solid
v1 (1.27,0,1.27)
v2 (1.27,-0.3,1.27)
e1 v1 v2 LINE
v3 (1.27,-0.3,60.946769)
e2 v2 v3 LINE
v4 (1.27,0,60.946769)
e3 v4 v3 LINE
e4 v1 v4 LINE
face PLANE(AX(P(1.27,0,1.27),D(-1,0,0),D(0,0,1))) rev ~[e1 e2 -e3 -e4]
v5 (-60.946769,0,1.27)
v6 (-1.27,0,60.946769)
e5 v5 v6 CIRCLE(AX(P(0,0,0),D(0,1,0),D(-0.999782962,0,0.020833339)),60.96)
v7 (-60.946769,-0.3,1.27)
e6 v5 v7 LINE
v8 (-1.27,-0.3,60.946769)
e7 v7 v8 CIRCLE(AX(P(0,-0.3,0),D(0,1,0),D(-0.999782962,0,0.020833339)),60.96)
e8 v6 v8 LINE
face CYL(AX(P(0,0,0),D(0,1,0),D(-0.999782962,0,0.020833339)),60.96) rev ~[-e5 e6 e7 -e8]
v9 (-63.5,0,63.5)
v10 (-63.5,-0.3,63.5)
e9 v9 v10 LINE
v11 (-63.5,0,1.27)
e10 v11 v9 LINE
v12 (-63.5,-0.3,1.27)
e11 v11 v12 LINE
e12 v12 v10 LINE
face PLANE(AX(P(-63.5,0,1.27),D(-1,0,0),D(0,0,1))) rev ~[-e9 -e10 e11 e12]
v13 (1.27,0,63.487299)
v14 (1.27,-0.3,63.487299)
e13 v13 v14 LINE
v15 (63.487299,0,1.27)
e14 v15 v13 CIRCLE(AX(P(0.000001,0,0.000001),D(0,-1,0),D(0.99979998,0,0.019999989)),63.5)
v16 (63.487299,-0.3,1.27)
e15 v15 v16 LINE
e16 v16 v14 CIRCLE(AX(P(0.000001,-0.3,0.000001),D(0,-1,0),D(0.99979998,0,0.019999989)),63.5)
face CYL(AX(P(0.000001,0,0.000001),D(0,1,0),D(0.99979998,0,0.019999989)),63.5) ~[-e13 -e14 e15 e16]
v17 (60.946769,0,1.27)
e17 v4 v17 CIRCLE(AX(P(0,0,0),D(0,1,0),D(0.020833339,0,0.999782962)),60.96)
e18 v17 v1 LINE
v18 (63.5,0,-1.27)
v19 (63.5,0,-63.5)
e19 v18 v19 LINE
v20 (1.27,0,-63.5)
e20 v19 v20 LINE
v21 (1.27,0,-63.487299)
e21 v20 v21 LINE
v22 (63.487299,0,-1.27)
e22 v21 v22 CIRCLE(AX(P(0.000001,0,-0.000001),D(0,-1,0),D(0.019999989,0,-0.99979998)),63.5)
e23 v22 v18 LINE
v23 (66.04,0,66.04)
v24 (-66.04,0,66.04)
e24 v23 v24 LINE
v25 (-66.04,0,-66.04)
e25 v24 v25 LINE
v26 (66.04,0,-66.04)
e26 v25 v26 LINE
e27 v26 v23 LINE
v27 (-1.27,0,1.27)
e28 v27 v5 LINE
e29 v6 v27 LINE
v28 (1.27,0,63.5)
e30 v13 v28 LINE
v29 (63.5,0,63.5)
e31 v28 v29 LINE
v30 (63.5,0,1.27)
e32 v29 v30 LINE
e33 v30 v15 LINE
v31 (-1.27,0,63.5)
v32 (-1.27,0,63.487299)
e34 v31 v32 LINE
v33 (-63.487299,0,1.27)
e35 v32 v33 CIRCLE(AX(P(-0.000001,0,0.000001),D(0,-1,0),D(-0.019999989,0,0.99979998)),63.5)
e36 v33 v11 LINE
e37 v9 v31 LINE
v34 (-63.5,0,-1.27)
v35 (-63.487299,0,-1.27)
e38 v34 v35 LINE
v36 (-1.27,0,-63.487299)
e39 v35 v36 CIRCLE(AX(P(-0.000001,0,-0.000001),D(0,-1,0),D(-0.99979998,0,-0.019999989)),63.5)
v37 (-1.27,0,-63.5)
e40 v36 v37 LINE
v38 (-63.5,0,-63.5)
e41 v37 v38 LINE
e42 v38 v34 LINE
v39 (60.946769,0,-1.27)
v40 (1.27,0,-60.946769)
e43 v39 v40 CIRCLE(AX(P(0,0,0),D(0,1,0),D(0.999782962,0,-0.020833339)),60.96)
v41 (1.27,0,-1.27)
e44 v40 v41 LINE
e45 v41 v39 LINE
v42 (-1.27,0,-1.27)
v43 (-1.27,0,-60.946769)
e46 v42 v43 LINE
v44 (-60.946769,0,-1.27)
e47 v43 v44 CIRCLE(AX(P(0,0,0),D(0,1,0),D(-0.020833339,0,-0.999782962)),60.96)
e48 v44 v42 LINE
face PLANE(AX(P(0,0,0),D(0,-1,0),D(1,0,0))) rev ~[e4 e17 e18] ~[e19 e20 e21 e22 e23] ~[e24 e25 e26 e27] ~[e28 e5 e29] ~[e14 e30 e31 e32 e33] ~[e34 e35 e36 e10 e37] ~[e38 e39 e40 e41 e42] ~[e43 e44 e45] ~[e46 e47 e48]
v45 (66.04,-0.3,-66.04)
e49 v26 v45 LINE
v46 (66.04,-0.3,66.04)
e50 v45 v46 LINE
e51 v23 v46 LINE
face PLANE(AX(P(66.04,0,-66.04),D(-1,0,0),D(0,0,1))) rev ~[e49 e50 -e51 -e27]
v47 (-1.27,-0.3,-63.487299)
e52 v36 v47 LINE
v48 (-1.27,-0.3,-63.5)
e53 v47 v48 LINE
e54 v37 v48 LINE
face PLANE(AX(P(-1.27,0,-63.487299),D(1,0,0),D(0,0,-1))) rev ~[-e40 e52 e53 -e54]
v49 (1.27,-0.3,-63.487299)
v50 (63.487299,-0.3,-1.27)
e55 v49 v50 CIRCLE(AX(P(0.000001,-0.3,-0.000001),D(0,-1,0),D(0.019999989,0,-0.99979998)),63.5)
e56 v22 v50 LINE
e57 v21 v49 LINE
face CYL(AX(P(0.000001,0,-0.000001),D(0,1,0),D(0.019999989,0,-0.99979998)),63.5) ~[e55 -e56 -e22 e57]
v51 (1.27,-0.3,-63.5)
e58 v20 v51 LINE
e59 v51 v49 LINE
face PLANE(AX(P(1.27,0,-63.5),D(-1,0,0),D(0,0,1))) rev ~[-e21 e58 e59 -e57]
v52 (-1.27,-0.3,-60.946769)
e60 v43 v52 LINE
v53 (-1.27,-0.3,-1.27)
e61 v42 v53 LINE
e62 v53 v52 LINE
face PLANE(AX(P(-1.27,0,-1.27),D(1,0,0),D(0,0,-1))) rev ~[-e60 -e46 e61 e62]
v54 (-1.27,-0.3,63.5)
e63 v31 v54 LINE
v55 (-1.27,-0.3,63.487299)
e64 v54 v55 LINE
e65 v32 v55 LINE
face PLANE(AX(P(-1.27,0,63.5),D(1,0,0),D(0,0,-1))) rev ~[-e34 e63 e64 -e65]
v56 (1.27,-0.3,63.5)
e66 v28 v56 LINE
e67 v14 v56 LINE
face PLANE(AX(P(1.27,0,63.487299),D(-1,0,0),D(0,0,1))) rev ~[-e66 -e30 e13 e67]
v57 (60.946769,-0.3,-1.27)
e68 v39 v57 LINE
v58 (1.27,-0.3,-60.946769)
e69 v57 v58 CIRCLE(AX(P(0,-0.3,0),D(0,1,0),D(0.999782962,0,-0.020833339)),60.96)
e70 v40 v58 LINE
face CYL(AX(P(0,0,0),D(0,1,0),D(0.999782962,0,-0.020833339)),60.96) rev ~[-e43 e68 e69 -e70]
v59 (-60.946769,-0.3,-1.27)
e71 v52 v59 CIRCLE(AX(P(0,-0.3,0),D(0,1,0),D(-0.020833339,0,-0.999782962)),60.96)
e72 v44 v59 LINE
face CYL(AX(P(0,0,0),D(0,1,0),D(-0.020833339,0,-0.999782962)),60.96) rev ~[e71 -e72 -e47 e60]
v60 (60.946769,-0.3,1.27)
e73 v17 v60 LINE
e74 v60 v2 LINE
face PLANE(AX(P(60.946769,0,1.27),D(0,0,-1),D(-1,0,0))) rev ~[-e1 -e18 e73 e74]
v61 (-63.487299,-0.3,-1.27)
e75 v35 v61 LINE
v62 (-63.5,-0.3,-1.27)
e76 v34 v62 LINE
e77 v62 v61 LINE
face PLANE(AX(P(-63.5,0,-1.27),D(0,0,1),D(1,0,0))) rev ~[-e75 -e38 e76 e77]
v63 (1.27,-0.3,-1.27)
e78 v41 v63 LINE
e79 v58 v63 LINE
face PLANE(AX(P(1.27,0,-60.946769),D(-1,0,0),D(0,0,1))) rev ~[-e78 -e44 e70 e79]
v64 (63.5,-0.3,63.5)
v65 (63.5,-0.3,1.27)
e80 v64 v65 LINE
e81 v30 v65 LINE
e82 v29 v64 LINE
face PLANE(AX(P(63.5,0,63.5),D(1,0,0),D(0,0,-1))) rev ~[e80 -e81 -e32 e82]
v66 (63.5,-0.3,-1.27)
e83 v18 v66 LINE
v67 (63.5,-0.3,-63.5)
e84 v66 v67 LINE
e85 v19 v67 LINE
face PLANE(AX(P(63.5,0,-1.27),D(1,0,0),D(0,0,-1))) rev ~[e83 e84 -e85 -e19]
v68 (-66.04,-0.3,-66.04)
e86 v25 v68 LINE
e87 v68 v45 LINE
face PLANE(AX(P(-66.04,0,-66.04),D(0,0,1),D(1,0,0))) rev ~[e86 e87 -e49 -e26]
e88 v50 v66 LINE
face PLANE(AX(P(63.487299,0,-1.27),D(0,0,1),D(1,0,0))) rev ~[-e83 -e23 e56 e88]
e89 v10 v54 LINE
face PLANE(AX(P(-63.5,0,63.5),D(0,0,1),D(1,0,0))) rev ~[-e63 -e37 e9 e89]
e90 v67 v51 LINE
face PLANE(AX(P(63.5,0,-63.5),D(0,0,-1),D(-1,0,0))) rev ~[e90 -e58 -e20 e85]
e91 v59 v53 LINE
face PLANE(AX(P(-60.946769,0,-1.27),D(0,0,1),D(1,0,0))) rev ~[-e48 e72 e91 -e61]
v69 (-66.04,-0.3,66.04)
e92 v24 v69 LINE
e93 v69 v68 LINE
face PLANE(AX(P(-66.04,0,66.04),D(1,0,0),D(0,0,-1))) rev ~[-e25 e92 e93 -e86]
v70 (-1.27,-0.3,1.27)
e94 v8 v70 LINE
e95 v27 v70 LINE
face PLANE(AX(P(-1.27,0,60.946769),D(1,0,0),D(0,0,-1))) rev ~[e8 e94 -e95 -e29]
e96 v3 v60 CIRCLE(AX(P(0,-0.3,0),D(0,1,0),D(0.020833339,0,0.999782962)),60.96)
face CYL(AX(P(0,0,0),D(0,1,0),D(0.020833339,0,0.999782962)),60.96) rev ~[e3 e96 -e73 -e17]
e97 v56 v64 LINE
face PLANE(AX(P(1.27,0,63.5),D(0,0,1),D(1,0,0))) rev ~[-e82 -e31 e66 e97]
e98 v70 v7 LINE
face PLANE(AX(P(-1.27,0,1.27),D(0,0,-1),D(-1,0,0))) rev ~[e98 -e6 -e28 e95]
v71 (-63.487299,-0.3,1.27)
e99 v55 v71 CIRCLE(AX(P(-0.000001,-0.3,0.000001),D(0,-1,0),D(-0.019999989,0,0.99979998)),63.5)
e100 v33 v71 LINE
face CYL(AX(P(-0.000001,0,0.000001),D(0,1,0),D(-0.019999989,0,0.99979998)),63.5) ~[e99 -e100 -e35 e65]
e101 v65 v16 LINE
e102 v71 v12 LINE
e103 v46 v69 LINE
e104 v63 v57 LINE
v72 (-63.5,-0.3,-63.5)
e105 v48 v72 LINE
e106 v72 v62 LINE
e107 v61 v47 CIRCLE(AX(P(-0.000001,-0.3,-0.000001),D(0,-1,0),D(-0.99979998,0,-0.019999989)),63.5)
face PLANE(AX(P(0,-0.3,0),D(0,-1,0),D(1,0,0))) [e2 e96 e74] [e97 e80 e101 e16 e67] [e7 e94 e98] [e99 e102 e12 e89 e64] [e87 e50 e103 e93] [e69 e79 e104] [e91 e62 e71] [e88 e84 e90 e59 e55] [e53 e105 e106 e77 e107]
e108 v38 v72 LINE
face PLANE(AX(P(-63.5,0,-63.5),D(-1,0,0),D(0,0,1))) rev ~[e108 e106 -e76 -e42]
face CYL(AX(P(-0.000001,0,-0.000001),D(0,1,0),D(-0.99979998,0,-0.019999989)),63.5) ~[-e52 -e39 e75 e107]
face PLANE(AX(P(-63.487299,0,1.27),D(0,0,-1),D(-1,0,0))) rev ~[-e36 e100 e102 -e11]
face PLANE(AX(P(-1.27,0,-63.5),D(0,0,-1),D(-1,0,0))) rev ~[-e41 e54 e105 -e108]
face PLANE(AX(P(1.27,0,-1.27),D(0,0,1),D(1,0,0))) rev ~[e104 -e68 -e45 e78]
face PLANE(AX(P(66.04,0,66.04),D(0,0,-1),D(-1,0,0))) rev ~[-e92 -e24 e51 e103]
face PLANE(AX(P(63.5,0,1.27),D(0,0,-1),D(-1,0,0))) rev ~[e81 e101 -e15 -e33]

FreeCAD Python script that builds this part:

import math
import FreeCAD as App
import Part
import Sketcher
Q = App.Units.Quantity


def add_polygon(sketch, points):
    """Adds a closed chain of lines whose ends are joined by coincident constraints."""
    first, n = sketch.GeometryCount, len(points)
    for a, b in zip(points, points[1:] + points[:1]):
        sketch.addGeometry(Part.LineSegment(App.Vector(*a, 0), App.Vector(*b, 0)), False)
    for i in range(n):
        sketch.addConstraint(Sketcher.Constraint("Coincident", first + i, 2, first + (i + 1) % n, 1))

doc = App.newDocument("Part")
body = doc.addObject("PartDesign::Body", "Body")

# Sketch on XZ plane
sketch1 = doc.addObject("Sketcher::SketchObject", "Sketch")
body.addObject(sketch1)
sketch1.AttachmentSupport = (doc.XZ_Plane, [""])
sketch1.MapMode = "FlatFace"
add_polygon(sketch1, [(66.04, 66.04), (-66.04, 66.04), (-66.04, -66.04), (66.04, -66.04)])  # lines 0-3
sketch1.addGeometry(Part.ArcOfCircle(Part.Circle(App.Vector(0, 0, 0), App.Vector(0, 0, 1), 63.5), math.radians(-179), math.radians(-91)), False)  # 4
sketch1.addGeometry(Part.LineSegment(App.Vector(-1.27, -63.487, 0), App.Vector(-1.27, -63.5, 0)), False)  # 5
sketch1.addGeometry(Part.LineSegment(App.Vector(-1.27, -63.5, 0), App.Vector(-63.5, -63.5, 0)), False)  # 6
sketch1.addGeometry(Part.LineSegment(App.Vector(-63.5, -63.5, 0), App.Vector(-63.5, -1.27, 0)), False)  # 7
sketch1.addGeometry(Part.LineSegment(App.Vector(-63.5, -1.27, 0), App.Vector(-63.487, -1.27, 0)), False)  # 8
sketch1.addGeometry(Part.ArcOfCircle(Part.Circle(App.Vector(0, 0, 0), App.Vector(0, 0, 1), 60.96), math.radians(-179), math.radians(-91)), False)  # 9
sketch1.addGeometry(Part.LineSegment(App.Vector(-60.947, -1.27, 0), App.Vector(-1.27, -1.27, 0)), False)  # 10
sketch1.addGeometry(Part.LineSegment(App.Vector(-1.27, -1.27, 0), App.Vector(-1.27, -60.947, 0)), False)  # 11
sketch1.addGeometry(Part.LineSegment(App.Vector(63.487, -1.27, 0), App.Vector(63.5, -1.27, 0)), False)  # 12
sketch1.addGeometry(Part.LineSegment(App.Vector(63.5, -1.27, 0), App.Vector(63.5, -63.5, 0)), False)  # 13
sketch1.addGeometry(Part.LineSegment(App.Vector(63.5, -63.5, 0), App.Vector(1.27, -63.5, 0)), False)  # 14
sketch1.addGeometry(Part.LineSegment(App.Vector(1.27, -63.5, 0), App.Vector(1.27, -63.487, 0)), False)  # 15
sketch1.addGeometry(Part.ArcOfCircle(Part.Circle(App.Vector(0, 0, 0), App.Vector(0, 0, 1), 63.5), math.radians(-89), math.radians(-1)), False)  # 16
sketch1.addGeometry(Part.ArcOfCircle(Part.Circle(App.Vector(0, 0, 0), App.Vector(0, 0, 1), 60.96), math.radians(-89), math.radians(-1)), False)  # 17
sketch1.addGeometry(Part.LineSegment(App.Vector(1.27, -60.947, 0), App.Vector(1.27, -1.27, 0)), False)  # 18
sketch1.addGeometry(Part.LineSegment(App.Vector(1.27, -1.27, 0), App.Vector(60.947, -1.27, 0)), False)  # 19
sketch1.addGeometry(Part.ArcOfCircle(Part.Circle(App.Vector(0, 0, 0), App.Vector(0, 0, 1), 60.96), math.radians(91), math.radians(179)), False)  # 20
sketch1.addGeometry(Part.LineSegment(App.Vector(-1.27, 60.947, 0), App.Vector(-1.27, 1.27, 0)), False)  # 21
sketch1.addGeometry(Part.LineSegment(App.Vector(-1.27, 1.27, 0), App.Vector(-60.947, 1.27, 0)), False)  # 22
sketch1.addGeometry(Part.LineSegment(App.Vector(-63.5, 1.27, 0), App.Vector(-63.5, 63.5, 0)), False)  # 23
sketch1.addGeometry(Part.LineSegment(App.Vector(-63.5, 63.5, 0), App.Vector(-1.27, 63.5, 0)), False)  # 24
sketch1.addGeometry(Part.LineSegment(App.Vector(-1.27, 63.5, 0), App.Vector(-1.27, 63.487, 0)), False)  # 25
sketch1.addGeometry(Part.ArcOfCircle(Part.Circle(App.Vector(0, 0, 0), App.Vector(0, 0, 1), 63.5), math.radians(91), math.radians(179)), False)  # 26
sketch1.addGeometry(Part.LineSegment(App.Vector(-63.487, 1.27, 0), App.Vector(-63.5, 1.27, 0)), False)  # 27
sketch1.addGeometry(Part.LineSegment(App.Vector(1.27, 1.27, 0), App.Vector(1.27, 60.947, 0)), False)  # 28
sketch1.addGeometry(Part.ArcOfCircle(Part.Circle(App.Vector(0, 0, 0), App.Vector(0, 0, 1), 60.96), math.radians(1), math.radians(89)), False)  # 29
sketch1.addGeometry(Part.LineSegment(App.Vector(60.947, 1.27, 0), App.Vector(1.27, 1.27, 0)), False)  # 30
sketch1.addGeometry(Part.LineSegment(App.Vector(1.27, 63.487, 0), App.Vector(1.27, 63.5, 0)), False)  # 31
sketch1.addGeometry(Part.LineSegment(App.Vector(1.27, 63.5, 0), App.Vector(63.5, 63.5, 0)), False)  # 32
sketch1.addGeometry(Part.LineSegment(App.Vector(63.5, 63.5, 0), App.Vector(63.5, 1.27, 0)), False)  # 33
sketch1.addGeometry(Part.LineSegment(App.Vector(63.5, 1.27, 0), App.Vector(63.487, 1.27, 0)), False)  # 34
sketch1.addGeometry(Part.ArcOfCircle(Part.Circle(App.Vector(0, 0, 0), App.Vector(0, 0, 1), 63.5), math.radians(1), math.radians(89)), False)  # 35
sketch1.addConstraint([
    Sketcher.Constraint("Coincident", 4, 2, 5, 1),
    Sketcher.Constraint("Coincident", 5, 2, 6, 1),
    Sketcher.Constraint("Coincident", 6, 2, 7, 1),
    Sketcher.Constraint("Coincident", 7, 2, 8, 1),
    Sketcher.Constraint("Coincident", 8, 2, 4, 1),
    Sketcher.Constraint("Coincident", 9, 1, 10, 1),
    Sketcher.Constraint("Coincident", 10, 2, 11, 1),
    Sketcher.Constraint("Coincident", 11, 2, 9, 2),
    Sketcher.Constraint("Coincident", 12, 2, 13, 1),
    Sketcher.Constraint("Coincident", 13, 2, 14, 1),
    Sketcher.Constraint("Coincident", 14, 2, 15, 1),
    Sketcher.Constraint("Coincident", 15, 2, 16, 1),
    Sketcher.Constraint("Coincident", 16, 2, 12, 1),
    Sketcher.Constraint("Coincident", 17, 1, 18, 1),
    Sketcher.Constraint("Coincident", 18, 2, 19, 1),
    Sketcher.Constraint("Coincident", 19, 2, 17, 2),
    Sketcher.Constraint("Coincident", 20, 1, 21, 1),
    Sketcher.Constraint("Coincident", 21, 2, 22, 1),
    Sketcher.Constraint("Coincident", 22, 2, 20, 2),
    Sketcher.Constraint("Coincident", 23, 2, 24, 1),
    Sketcher.Constraint("Coincident", 24, 2, 25, 1),
    Sketcher.Constraint("Coincident", 25, 2, 26, 1),
    Sketcher.Constraint("Coincident", 26, 2, 27, 1),
    Sketcher.Constraint("Coincident", 27, 2, 23, 1),
    Sketcher.Constraint("Coincident", 28, 2, 29, 2),
    Sketcher.Constraint("Coincident", 29, 1, 30, 1),
    Sketcher.Constraint("Coincident", 30, 2, 28, 1),
    Sketcher.Constraint("Coincident", 31, 2, 32, 1),
    Sketcher.Constraint("Coincident", 32, 2, 33, 1),
    Sketcher.Constraint("Coincident", 33, 2, 34, 1),
    Sketcher.Constraint("Coincident", 34, 2, 35, 1),
    Sketcher.Constraint("Coincident", 35, 2, 31, 1),
    Sketcher.Constraint("Horizontal", 0),
    Sketcher.Constraint("Vertical", 1),
    Sketcher.Constraint("Horizontal", 2),
    Sketcher.Constraint("Vertical", 3),
    Sketcher.Constraint("Vertical", 5),
    Sketcher.Constraint("Horizontal", 6),
    Sketcher.Constraint("Vertical", 7),
    Sketcher.Constraint("Horizontal", 8),
    Sketcher.Constraint("Horizontal", 10),
    Sketcher.Constraint("Vertical", 11),
    Sketcher.Constraint("Horizontal", 12),
    Sketcher.Constraint("Vertical", 13),
    Sketcher.Constraint("Horizontal", 14),
    Sketcher.Constraint("Vertical", 15),
    Sketcher.Constraint("Vertical", 18),
    Sketcher.Constraint("Horizontal", 19),
    Sketcher.Constraint("Vertical", 21),
    Sketcher.Constraint("Horizontal", 22),
    Sketcher.Constraint("Vertical", 23),
    Sketcher.Constraint("Horizontal", 24),
    Sketcher.Constraint("Vertical", 25),
    Sketcher.Constraint("Horizontal", 27),
    Sketcher.Constraint("Vertical", 28),
    Sketcher.Constraint("Horizontal", 30),
    Sketcher.Constraint("Vertical", 31),
    Sketcher.Constraint("Horizontal", 32),
    Sketcher.Constraint("Vertical", 33),
    Sketcher.Constraint("Horizontal", 34),
    Sketcher.Constraint("Coincident", 4, 3, -1, 1),
    Sketcher.Constraint("Coincident", 9, 3, -1, 1),
    Sketcher.Constraint("Coincident", 16, 3, -1, 1),
    Sketcher.Constraint("Coincident", 17, 3, -1, 1),
    Sketcher.Constraint("Coincident", 20, 3, -1, 1),
    Sketcher.Constraint("Coincident", 26, 3, -1, 1),
    Sketcher.Constraint("Coincident", 29, 3, -1, 1),
    Sketcher.Constraint("Coincident", 35, 3, -1, 1),
    Sketcher.Constraint("Equal", 4, 16),
    Sketcher.Constraint("Equal", 9, 17),
    Sketcher.Constraint("Equal", 17, 20),
    Sketcher.Constraint("Equal", 16, 26),
    Sketcher.Constraint("Equal", 20, 29),
    Sketcher.Constraint("Equal", 26, 35),
    Sketcher.Constraint("Symmetric", 0, 2, 2, 2, -1, 1),
    Sketcher.Constraint("Symmetric", 18, 2, 21, 2, -1, 1),
    Sketcher.Constraint("Symmetric", 13, 2, 23, 2, -1, 1),
    Sketcher.Constraint("Symmetric", 10, 2, 30, 2, -1, 1),
    Sketcher.Constraint("Symmetric", 5, 2, 31, 2, -1, 1),
    Sketcher.Constraint("Symmetric", 7, 2, 33, 2, -1, 1),
    Sketcher.Constraint("Symmetric", 7, 2, 12, 2, -2),
    Sketcher.Constraint("Symmetric", 5, 2, 14, 2, -2),
    Sketcher.Constraint("Symmetric", 10, 2, 18, 2, -2),
    Sketcher.Constraint("Horizontal", 8, 2, 9, 1),
    Sketcher.Constraint("Horizontal", 22, 2, 26, 2),
    Sketcher.Constraint("Horizontal", 25, 2, 35, 2),
    Sketcher.Constraint("Vertical", 5, 2, 10, 2),
    Sketcher.Constraint("Equal", 2, 1),
    Sketcher.Constraint("Equal", 34, 5),
    Sketcher.Constraint("Equal", 32, 7),
    Sketcher.Constraint("Radius", 4, Q("2.5 in")),
    Sketcher.Constraint("Radius", 9, Q("2.4 in")),
    Sketcher.Constraint("DistanceX", 0, 2, 0, 1, Q("5.2 in")),
    Sketcher.Constraint("DistanceX", 6, 2, 6, 1, Q("2.45 in")),
    Sketcher.Constraint("DistanceY", 5, 2, -1, 1, Q("2.5 in")),
])
pad1 = doc.addObject("PartDesign::Pad", "Pad")
body.addObject(pad1)
pad1.Profile = sketch1
pad1.Length = 0.3

doc.recompute()
